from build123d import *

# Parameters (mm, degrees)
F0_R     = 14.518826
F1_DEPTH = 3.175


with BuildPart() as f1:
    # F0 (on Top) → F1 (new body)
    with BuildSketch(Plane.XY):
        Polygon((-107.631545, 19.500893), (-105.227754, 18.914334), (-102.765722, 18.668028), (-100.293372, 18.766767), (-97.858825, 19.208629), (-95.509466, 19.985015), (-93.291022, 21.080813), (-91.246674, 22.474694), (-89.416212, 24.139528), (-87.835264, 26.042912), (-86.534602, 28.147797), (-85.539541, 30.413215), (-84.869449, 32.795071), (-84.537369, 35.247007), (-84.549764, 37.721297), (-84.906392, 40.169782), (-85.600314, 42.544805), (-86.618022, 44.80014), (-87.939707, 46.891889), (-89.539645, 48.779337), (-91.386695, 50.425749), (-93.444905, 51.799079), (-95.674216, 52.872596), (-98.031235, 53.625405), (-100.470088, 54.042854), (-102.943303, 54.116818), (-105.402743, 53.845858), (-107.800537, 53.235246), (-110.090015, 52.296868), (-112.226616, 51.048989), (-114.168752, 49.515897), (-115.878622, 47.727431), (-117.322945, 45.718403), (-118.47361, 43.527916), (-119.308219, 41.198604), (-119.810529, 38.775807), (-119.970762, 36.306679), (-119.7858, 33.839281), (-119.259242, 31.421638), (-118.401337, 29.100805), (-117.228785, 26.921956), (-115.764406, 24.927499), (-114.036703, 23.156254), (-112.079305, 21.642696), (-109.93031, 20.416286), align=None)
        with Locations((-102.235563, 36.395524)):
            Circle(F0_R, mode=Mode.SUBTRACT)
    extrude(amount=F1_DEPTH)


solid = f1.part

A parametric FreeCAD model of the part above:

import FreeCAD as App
import Part
import Sketcher
from FreeCAD import Vector
Q = App.Units.Quantity


def add_polygon(sketch, points):
    """Adds a closed chain of lines whose ends are joined by coincident constraints."""
    first, n = sketch.GeometryCount, len(points)
    for a, b in zip(points, points[1:] + points[:1]):
        sketch.addGeometry(Part.LineSegment(App.Vector(*a, 0), App.Vector(*b, 0)), False)
    for i in range(n):
        sketch.addConstraint(Sketcher.Constraint("Coincident", first + i, 2, first + (i + 1) % n, 1))

doc = App.newDocument("Part")
body = doc.addObject("PartDesign::Body", "Body")

# Sketch on XY plane
sketch1 = body.newObject("Sketcher::SketchObject", "Sketch")
sketch1.AttachmentSupport = (doc.getObject("XY_Plane"), [""])
sketch1.MapMode = "FlatFace"
add_polygon(sketch1, [(-107.6, 19.5), (-105.2, 18.9), (-102.8, 18.7), (-100.3, 18.8), (-97.9, 19.2), (-95.5, 20), (-93.3, 21.1), (-91.2, 22.5), (-89.4, 24.1), (-87.8, 26), (-86.5, 28.1), (-85.5, 30.4), (-84.9, 32.8), (-84.5, 35.2), (-84.5, 37.7), (-84.9, 40.2), (-85.6, 42.5), (-86.6, 44.8), (-87.9, 46.9), (-89.5, 48.8), (-91.4, 50.4), (-93.4, 51.8), (-95.7, 52.9), (-98, 53.6), (-100.5, 54), (-102.9, 54.1), (-105.4, 53.8), (-107.8, 53.2), (-110.1, 52.3), (-112.2, 51), (-114.2, 49.5), (-115.9, 47.7), (-117.3, 45.7), (-118.5, 43.5), (-119.3, 41.2), (-119.8, 38.8), (-120, 36.3), (-119.8, 33.8), (-119.3, 31.4), (-118.4, 29.1), (-117.2, 26.9), (-115.8, 24.9), (-114, 23.2), (-112.1, 21.6), (-109.9, 20.4)])  # lines 0-44
sketch1.addGeometry(Part.Circle(Vector(-102.2, 36.4, 0), Vector(0, 0, 1), 14.5), False)  # 45
sketch1.addConstraint([
    Sketcher.Constraint("Equal", 0, 1),
    Sketcher.Constraint("Equal", 1, 2),
    Sketcher.Constraint("Equal", 2, 3),
    Sketcher.Constraint("Equal", 3, 4),
    Sketcher.Constraint("Equal", 4, 5),
    Sketcher.Constraint("Equal", 5, 6),
    Sketcher.Constraint("Equal", 6, 7),
    Sketcher.Constraint("Equal", 7, 8),
    Sketcher.Constraint("Equal", 8, 9),
    Sketcher.Constraint("Equal", 9, 10),
    Sketcher.Constraint("Equal", 10, 11),
    Sketcher.Constraint("Equal", 11, 12),
    Sketcher.Constraint("Equal", 12, 13),
    Sketcher.Constraint("Equal", 13, 14),
    Sketcher.Constraint("Equal", 14, 15),
    Sketcher.Constraint("Equal", 15, 16),
    Sketcher.Constraint("Equal", 16, 17),
    Sketcher.Constraint("Equal", 17, 18),
    Sketcher.Constraint("Equal", 18, 19),
    Sketcher.Constraint("Equal", 19, 20),
    Sketcher.Constraint("Equal", 20, 21),
    Sketcher.Constraint("Equal", 21, 22),
    Sketcher.Constraint("Equal", 22, 23),
    Sketcher.Constraint("Equal", 23, 24),
    Sketcher.Constraint("Equal", 24, 25),
    Sketcher.Constraint("Equal", 25, 26),
    Sketcher.Constraint("Equal", 26, 27),
    Sketcher.Constraint("Equal", 27, 28),
    Sketcher.Constraint("Equal", 28, 29),
    Sketcher.Constraint("Equal", 29, 30),
    Sketcher.Constraint("Equal", 30, 31),
    Sketcher.Constraint("Equal", 31, 32),
    Sketcher.Constraint("Equal", 32, 33),
    Sketcher.Constraint("Equal", 33, 34),
    Sketcher.Constraint("Equal", 34, 35),
    Sketcher.Constraint("Equal", 35, 36),
    Sketcher.Constraint("Equal", 36, 37),
    Sketcher.Constraint("Equal", 37, 38),
    Sketcher.Constraint("Equal", 38, 39),
    Sketcher.Constraint("Equal", 39, 40),
    Sketcher.Constraint("Equal", 40, 41),
    Sketcher.Constraint("Equal", 41, 42),
    Sketcher.Constraint("Equal", 42, 43),
    Sketcher.Constraint("Equal", 43, 44),
    Sketcher.Constraint("Diameter", 45, Q("29.037652 mm")),
    Sketcher.Constraint("DistanceY", 4, 2, 8, 2, Q("0.2384999 in")),
    Sketcher.Constraint("DistanceX", 21, 2, 19, 2, Q("0.1688 in")),
    Sketcher.Constraint("DistanceX", 36, 2, -1, 1, Q("119.7858 mm")),
    Sketcher.Constraint("DistanceY", -1, 1, 40, 2, Q("24.927499 mm")),
    Sketcher.Constraint("DistanceY", 1, 2, 3, 2, Q("0.540601 mm")),
    Sketcher.Constraint("DistanceX", 1, 2, 5, 2, Q("9.4747 mm")),
    Sketcher.Constraint("DistanceX", 2, 2, 6, 2, Q("9.046698 mm")),
    Sketcher.Constraint("DistanceY", 3, 2, 7, 2, Q("4.930899 mm")),
    Sketcher.Constraint("DistanceY", 5, 2, 8, 2, Q("4.962099 mm")),
    Sketcher.Constraint("DistanceY", 9, 2, 13, 2, Q("9.5735 mm")),
    Sketcher.Constraint("DistanceX", 8, 2, 13, 2, Q("3.2855 mm")),
    Sketcher.Constraint("DistanceX", 20, 2, 17, 2, Q("5.505198 mm")),
    Sketcher.Constraint("DistanceX", 28, 2, 27, 2, Q("2.136601 mm")),
    Sketcher.Constraint("DistanceY", 33, 2, 31, 2, Q("4.519799 mm")),
    Sketcher.Constraint("DistanceY", 36, 2, 35, 2, Q("2.467398 mm")),
    Sketcher.Constraint("DistanceY", 38, 2, 34, 2, Q("9.675002 mm")),
    Sketcher.Constraint("DistanceY", 38, 2, 33, 2, Q("12.097799 mm")),
    Sketcher.Constraint("DistanceX", 40, 2, 42, 2, Q("3.685101 mm")),
    Sketcher.Constraint("Distance", 0, Q("2.474321 mm")),
    Sketcher.Constraint("DistanceX", 1, 2, -1, 1, Q("102.765722 mm")),
    Sketcher.Constraint("DistanceY", -1, 1, 3, 2, Q("19.208629 mm")),
    Sketcher.Constraint("DistanceX", 7, 2, -1, 1, Q("89.416212 mm")),
    Sketcher.Constraint("DistanceX", 10, 2, -1, 1, Q("85.539541 mm")),
    Sketcher.Constraint("DistanceX", 11, 2, -1, 1, Q("84.869449 mm")),
    Sketcher.Constraint("DistanceY", -1, 1, 11, 2, Q("32.795071 mm")),
    Sketcher.Constraint("DistanceX", 14, 2, -1, 1, Q("84.906392 mm")),
    Sketcher.Constraint("DistanceX", 16, 2, -1, 1, Q("86.618022 mm")),
    Sketcher.Constraint("DistanceY", -1, 1, 16, 2, Q("44.80014 mm")),
    Sketcher.Constraint("DistanceY", -1, 1, 17, 2, Q("46.891889 mm")),
    Sketcher.Constraint("DistanceY", -1, 1, 19, 2, Q("50.425749 mm")),
    Sketcher.Constraint("DistanceY", -1, 1, 20, 2, Q("51.799079 mm")),
    Sketcher.Constraint("DistanceX", 23, 2, -1, 1, Q("100.470088 mm")),
    Sketcher.Constraint("DistanceY", -1, 1, 24, 2, Q("54.116818 mm")),
    Sketcher.Constraint("DistanceY", -1, 1, 27, 2, Q("52.296868 mm")),
    Sketcher.Constraint("DistanceX", 29, 2, -1, 1, Q("114.168752 mm")),
    Sketcher.Constraint("DistanceX", 30, 2, -1, 1, Q("115.878622 mm")),
    Sketcher.Constraint("DistanceY", -1, 1, 30, 2, Q("47.727431 mm")),
    Sketcher.Constraint("DistanceX", 32, 2, -1, 1, Q("118.47361 mm")),
    Sketcher.Constraint("DistanceX", 33, 2, -1, 1, Q("119.308219 mm")),
    Sketcher.Constraint("DistanceX", 37, 2, -1, 1, Q("119.259242 mm")),
    Sketcher.Constraint("DistanceX", 43, 2, -1, 1, Q("109.93031 mm")),
    Sketcher.Constraint("DistanceX", 0, 2, 45, 3, Q("2.992191 mm")),
    Sketcher.Constraint("DistanceY", 0, 2, 45, 3, Q("17.48119 mm")),
    Sketcher.Constraint("DistanceX", 1, 2, 45, 3, Q("0.530159 mm")),
    Sketcher.Constraint("DistanceX", 22, 2, 21, 2, Q("2.357019 mm")),
    Sketcher.Constraint("DistanceX", 25, 2, 24, 2, Q("2.45944 mm")),
    Sketcher.Constraint("DistanceX", 38, 2, 39, 2, Q("1.172552 mm")),
    Sketcher.Constraint("DistanceX", 39, 2, 41, 2, Q("3.192082 mm")),
])
pad1 = body.newObject("PartDesign::Pad", "Pad")
pad1.Profile = sketch1
pad1.Length = Q("0.125 in")

doc.recompute()
